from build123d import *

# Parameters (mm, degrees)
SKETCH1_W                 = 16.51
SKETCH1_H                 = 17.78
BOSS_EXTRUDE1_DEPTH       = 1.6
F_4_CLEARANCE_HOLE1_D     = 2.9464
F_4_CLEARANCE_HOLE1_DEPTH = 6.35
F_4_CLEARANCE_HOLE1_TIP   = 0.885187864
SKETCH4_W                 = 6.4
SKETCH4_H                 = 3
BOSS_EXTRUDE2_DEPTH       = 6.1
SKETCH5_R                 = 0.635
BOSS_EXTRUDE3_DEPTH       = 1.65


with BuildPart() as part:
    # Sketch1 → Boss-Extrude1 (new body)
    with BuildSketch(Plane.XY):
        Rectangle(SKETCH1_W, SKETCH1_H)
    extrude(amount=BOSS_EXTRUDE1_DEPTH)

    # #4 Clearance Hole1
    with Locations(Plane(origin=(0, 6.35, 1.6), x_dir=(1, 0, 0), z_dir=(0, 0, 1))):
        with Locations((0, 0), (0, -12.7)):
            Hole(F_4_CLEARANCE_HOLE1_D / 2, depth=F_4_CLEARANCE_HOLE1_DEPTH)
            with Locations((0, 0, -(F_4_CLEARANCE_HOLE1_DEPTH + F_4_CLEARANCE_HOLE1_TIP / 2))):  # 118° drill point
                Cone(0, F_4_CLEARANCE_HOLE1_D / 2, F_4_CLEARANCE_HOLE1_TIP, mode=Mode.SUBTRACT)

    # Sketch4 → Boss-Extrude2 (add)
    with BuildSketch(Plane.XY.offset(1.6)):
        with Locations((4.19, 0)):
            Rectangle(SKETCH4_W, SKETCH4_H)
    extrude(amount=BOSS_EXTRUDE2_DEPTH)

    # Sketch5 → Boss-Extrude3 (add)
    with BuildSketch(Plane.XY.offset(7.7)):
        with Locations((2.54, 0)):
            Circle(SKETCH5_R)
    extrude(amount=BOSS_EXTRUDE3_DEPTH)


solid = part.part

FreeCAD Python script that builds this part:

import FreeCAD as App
import Part
import Sketcher
from FreeCAD import Vector
Q = App.Units.Quantity

doc = App.newDocument("Part")
body = doc.addObject("PartDesign::Body", "Body")

# Sketch on XY plane
sketch1 = doc.addObject("Sketcher::SketchObject", "Sketch")
body.addObject(sketch1)
sketch1.AttachmentSupport = (doc.XY_Plane, [""])
sketch1.MapMode = "FlatFace"
sketch1.addGeometry([
    Part.LineSegment(Vector(-8, 9, 0), Vector(-8, -9, 0)),
    Part.LineSegment(Vector(-8, -9, 0), Vector(8, -9, 0)),
    Part.LineSegment(Vector(8, -9, 0), Vector(8, 9, 0)),
    Part.LineSegment(Vector(8, 9, 0), Vector(-8, 9, 0)),
], False)
sketch1.addConstraint([
    Sketcher.Constraint("Coincident", 0, 2, 1, 1),
    Sketcher.Constraint("Coincident", 1, 2, 2, 1),
    Sketcher.Constraint("Coincident", 2, 2, 3, 1),
    Sketcher.Constraint("Coincident", 3, 2, 0, 1),
    Sketcher.Constraint("Vertical", 0),
    Sketcher.Constraint("Horizontal", 1),
    Sketcher.Constraint("Vertical", 2),
    Sketcher.Constraint("Horizontal", 3),
    Sketcher.Constraint("Symmetric", 0, 2, 2, 2, -1, 1),
    Sketcher.Constraint("DistanceY", 0, 2, 0, 1, Q("0.7 in")),
    Sketcher.Constraint("DistanceX", 1, 1, 1, 2, Q("0.65 in")),
])
pad1 = doc.addObject("PartDesign::Pad", "Pad")
body.addObject(pad1)
pad1.Profile = sketch1
pad1.Length = 1.6

# Sketch on XY plane
sketch2 = doc.addObject("Sketcher::SketchObject", "Sketch001")
body.addObject(sketch2)
sketch2.AttachmentSupport = (doc.XY_Plane, [""])
sketch2.MapMode = "FlatFace"
sketch2.AttachmentOffset = App.Placement(Vector(0, 0, 1.6), App.Rotation())
sketch2.addGeometry([
    Part.Circle(Vector(0, 6.3, 0), Vector(0, 0, 1), 1.5),
    Part.Circle(Vector(0, -6.3, 0), Vector(0, 0, 1), 1.5),
], False)
sketch2.addConstraint([
    Sketcher.Constraint("Equal", 0, 1),
    Sketcher.Constraint("Symmetric", 0, 3, 1, 3, -1, 1),
    Sketcher.Constraint("PointOnObject", 0, 3, -2),
    Sketcher.Constraint("Diameter", 0, Q("0.116 in")),
    Sketcher.Constraint("DistanceY", 1, 3, 0, 3, Q("0.5 in")),
])
doc.recompute()
hole = doc.addObject("PartDesign::Hole", "Hole")
body.addObject(hole)
hole.Profile = sketch2
hole.ThreadType = "None"
hole.Diameter = Q("0.116 in")
hole.DepthType = "Dimension"
hole.Depth = Q("0.25 in")
hole.DrillPoint = "Angled"
hole.DrillPointAngle = 118

# Sketch on XY plane
sketch3 = doc.addObject("Sketcher::SketchObject", "Sketch002")
body.addObject(sketch3)
sketch3.AttachmentSupport = (doc.XY_Plane, [""])
sketch3.MapMode = "FlatFace"
sketch3.AttachmentOffset = App.Placement(Vector(0, 0, 1.6), App.Rotation())
sketch3.addGeometry([
    Part.LineSegment(Vector(1, 1.5, 0), Vector(1, -1.5, 0)),
    Part.LineSegment(Vector(1, -1.5, 0), Vector(7.4, -1.5, 0)),
    Part.LineSegment(Vector(7.4, -1.5, 0), Vector(7.4, 1.5, 0)),
    Part.LineSegment(Vector(7.4, 1.5, 0), Vector(1, 1.5, 0)),
], False)
sketch3.addConstraint([
    Sketcher.Constraint("Coincident", 0, 2, 1, 1),
    Sketcher.Constraint("Coincident", 1, 2, 2, 1),
    Sketcher.Constraint("Coincident", 2, 2, 3, 1),
    Sketcher.Constraint("Coincident", 3, 2, 0, 1),
    Sketcher.Constraint("Vertical", 0),
    Sketcher.Constraint("Horizontal", 1),
    Sketcher.Constraint("Vertical", 2),
    Sketcher.Constraint("Horizontal", 3),
    Sketcher.Constraint("DistanceX", 1, 1, 1, 2, 6.4),
    Sketcher.Constraint("DistanceY", 0, 2, 0, 1, 3.0),
    Sketcher.Constraint("DistanceX", -1, 1, 0, 2, 0.99),
    Sketcher.Constraint("DistanceY", 0, 2, -1, 1, 1.5),
])
pad2 = doc.addObject("PartDesign::Pad", "Pad001")
body.addObject(pad2)
pad2.Profile = sketch3
pad2.Length = 6.1

# Sketch on XY plane
sketch4 = doc.addObject("Sketcher::SketchObject", "Sketch003")
body.addObject(sketch4)
sketch4.AttachmentSupport = (doc.XY_Plane, [""])
sketch4.MapMode = "FlatFace"
sketch4.AttachmentOffset = App.Placement(Vector(0, 0, 7.7), App.Rotation())
sketch4.addGeometry(Part.Circle(Vector(2.5, 0, 0), Vector(0, 0, 1), 0.6), False)
sketch4.addConstraint([
    Sketcher.Constraint("PointOnObject", 0, 3, -1),
    Sketcher.Constraint("Diameter", 0, Q("0.05 in")),
    Sketcher.Constraint("DistanceX", -1, 1, 0, 3, Q("0.1 in")),
])
pad3 = doc.addObject("PartDesign::Pad", "Pad002")
body.addObject(pad3)
pad3.Profile = sketch4
pad3.Length = 1.65

doc.recompute()
